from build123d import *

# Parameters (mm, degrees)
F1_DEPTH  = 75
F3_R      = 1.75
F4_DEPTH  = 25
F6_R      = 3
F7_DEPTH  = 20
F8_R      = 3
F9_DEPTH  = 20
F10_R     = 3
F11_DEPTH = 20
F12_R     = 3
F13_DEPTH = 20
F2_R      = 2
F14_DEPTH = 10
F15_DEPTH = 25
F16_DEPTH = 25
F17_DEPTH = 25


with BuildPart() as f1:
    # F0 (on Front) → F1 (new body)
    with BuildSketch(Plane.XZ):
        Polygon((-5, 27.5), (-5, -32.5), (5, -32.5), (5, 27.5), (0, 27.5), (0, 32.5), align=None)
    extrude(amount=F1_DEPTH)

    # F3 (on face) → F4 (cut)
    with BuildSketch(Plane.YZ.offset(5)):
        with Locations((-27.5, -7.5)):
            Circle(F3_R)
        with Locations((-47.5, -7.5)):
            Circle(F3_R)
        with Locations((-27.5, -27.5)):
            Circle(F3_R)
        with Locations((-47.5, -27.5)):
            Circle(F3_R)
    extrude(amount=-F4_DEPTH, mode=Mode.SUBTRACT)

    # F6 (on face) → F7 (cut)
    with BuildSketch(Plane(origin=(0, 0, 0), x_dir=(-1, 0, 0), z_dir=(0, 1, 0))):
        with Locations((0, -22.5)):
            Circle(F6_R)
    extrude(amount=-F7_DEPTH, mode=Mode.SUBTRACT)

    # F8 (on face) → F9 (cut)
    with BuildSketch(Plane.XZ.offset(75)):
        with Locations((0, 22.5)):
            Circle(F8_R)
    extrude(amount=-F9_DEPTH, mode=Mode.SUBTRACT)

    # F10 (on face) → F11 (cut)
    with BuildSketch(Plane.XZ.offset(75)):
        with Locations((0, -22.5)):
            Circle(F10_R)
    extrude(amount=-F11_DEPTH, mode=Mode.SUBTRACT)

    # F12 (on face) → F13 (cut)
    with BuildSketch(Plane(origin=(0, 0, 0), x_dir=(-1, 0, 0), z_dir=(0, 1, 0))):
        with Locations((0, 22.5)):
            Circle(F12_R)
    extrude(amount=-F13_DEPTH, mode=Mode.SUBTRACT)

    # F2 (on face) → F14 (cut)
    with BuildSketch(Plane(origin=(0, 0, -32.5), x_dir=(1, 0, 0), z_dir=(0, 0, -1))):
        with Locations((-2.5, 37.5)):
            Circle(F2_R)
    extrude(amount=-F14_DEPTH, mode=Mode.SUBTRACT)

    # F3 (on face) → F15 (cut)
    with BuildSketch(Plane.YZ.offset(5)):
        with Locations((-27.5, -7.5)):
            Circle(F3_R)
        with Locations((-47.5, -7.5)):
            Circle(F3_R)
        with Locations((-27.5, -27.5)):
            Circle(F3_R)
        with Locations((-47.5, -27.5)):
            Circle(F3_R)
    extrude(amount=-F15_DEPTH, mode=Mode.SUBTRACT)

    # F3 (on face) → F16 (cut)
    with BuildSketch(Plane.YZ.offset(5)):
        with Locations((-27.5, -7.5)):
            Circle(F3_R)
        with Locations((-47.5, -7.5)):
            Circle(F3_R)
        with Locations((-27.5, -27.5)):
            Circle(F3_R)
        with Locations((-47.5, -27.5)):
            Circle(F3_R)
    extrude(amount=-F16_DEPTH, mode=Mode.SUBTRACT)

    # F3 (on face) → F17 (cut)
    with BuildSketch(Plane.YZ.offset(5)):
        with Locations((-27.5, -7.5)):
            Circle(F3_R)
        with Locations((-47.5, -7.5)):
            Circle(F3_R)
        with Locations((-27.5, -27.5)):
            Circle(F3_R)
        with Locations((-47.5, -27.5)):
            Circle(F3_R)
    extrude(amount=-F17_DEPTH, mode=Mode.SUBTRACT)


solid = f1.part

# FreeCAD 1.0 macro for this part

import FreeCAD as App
import Part
import Sketcher

V = App.Vector
Q = App.Units.Quantity

doc = App.newDocument("Part")
body = doc.addObject("PartDesign::Body", "Body")

# Sketch on XZ plane
sketch1 = body.newObject("Sketcher::SketchObject", "Sketch")
sketch1.AttachmentSupport = (doc.getObject("XZ_Plane"), [""])
sketch1.MapMode = "FlatFace"
sketch1.addGeometry([
    Part.LineSegment(V(-5, 28, 0), V(-5, -32, 0)),  # 0
    Part.LineSegment(V(-5, -32, 0), V(5, -32, 0)),  # 1
    Part.LineSegment(V(5, -32, 0), V(5, 28, 0)),  # 2
    Part.LineSegment(V(5, 28, 0), V(0, 28, 0)),  # 3
    Part.LineSegment(V(0, 28, 0), V(0, 32, 0)),  # 4
    Part.LineSegment(V(0, 32, 0), V(-5, 28, 0)),  # 5
], False)
sketch1.addConstraint([
    Sketcher.Constraint("Coincident", 0, 2, 1, 1),
    Sketcher.Constraint("Coincident", 1, 2, 2, 1),
    Sketcher.Constraint("Coincident", 2, 2, 3, 1),
    Sketcher.Constraint("Coincident", 3, 2, 4, 1),
    Sketcher.Constraint("Coincident", 4, 2, 5, 1),
    Sketcher.Constraint("Coincident", 5, 2, 0, 1),
    Sketcher.Constraint("Vertical", 0),
    Sketcher.Constraint("Horizontal", 1),
    Sketcher.Constraint("Vertical", 2),
    Sketcher.Constraint("Horizontal", 3),
    Sketcher.Constraint("Vertical", 4),
    Sketcher.Constraint("Symmetric", 2, 2, 5, 2, -2),
    Sketcher.Constraint("PointOnObject", 3, 2, -2),
    Sketcher.Constraint("Equal", 3, 4),
    Sketcher.Constraint("DistanceX", 1, 1, 1, 2, Q("10 mm")),
    Sketcher.Constraint("DistanceY", 0, 2, 0, 1, Q("60 mm")),
    Sketcher.Constraint("DistanceY", 0, 2, -1, 1, Q("32.5 mm")),
])
pad1 = body.newObject("PartDesign::Pad", "Pad")
pad1.Profile = sketch1
pad1.Length = 75

# Sketch on YZ plane
sketch2 = body.newObject("Sketcher::SketchObject", "Sketch001")
sketch2.AttachmentSupport = (doc.getObject("YZ_Plane"), [""])
sketch2.MapMode = "FlatFace"
sketch2.AttachmentOffset = App.Placement(V(0, 0, 5), App.Rotation())
sketch2.addGeometry([
    Part.Circle(V(-27.5, -7.5, 0), V(0, 0, 1), 1.8),
    Part.Circle(V(-47.5, -7.5, 0), V(0, 0, 1), 1.8),
    Part.Circle(V(-27.5, -27.5, 0), V(0, 0, 1), 1.8),
    Part.Circle(V(-47.5, -27.5, 0), V(0, 0, 1), 1.8),
], False)
sketch2.addConstraint([
    Sketcher.Constraint("Equal", 0, 1),
    Sketcher.Constraint("Equal", 1, 2),
    Sketcher.Constraint("Equal", 2, 3),
    Sketcher.Constraint("Horizontal", 0, 3, 1, 3),
    Sketcher.Constraint("Horizontal", 2, 3, 3, 3),
    Sketcher.Constraint("Vertical", 0, 3, 2, 3),
    Sketcher.Constraint("Vertical", 1, 3, 3, 3),
    Sketcher.Constraint("Diameter", 0, Q("3.5 mm")),
    Sketcher.Constraint("DistanceX", 1, 3, 0, 3, Q("20 mm")),
    Sketcher.Constraint("DistanceY", 2, 3, 0, 3, Q("20 mm")),
    Sketcher.Constraint("DistanceX", 0, 3, -1, 1, Q("27.5 mm")),
    Sketcher.Constraint("DistanceY", 0, 3, -1, 1, Q("7.5 mm")),
])
pocket1 = body.newObject("PartDesign::Pocket", "Pocket")
pocket1.Profile = sketch2
pocket1.Length = 25

# Sketch on XZ plane
sketch3 = body.newObject("Sketcher::SketchObject", "Sketch002")
sketch3.AttachmentSupport = (doc.getObject("XZ_Plane"), [""])
sketch3.MapMode = "FlatFace"
sketch3.addGeometry(Part.Circle(V(0, -22.5, 0), V(0, 0, 1), 3), False)
sketch3.addConstraint([
    Sketcher.Constraint("PointOnObject", 0, 3, -2),
    Sketcher.Constraint("Diameter", 0, Q("6 mm")),
    Sketcher.Constraint("DistanceY", 0, 3, -1, 1, Q("22.5 mm")),
])
pocket2 = body.newObject("PartDesign::Pocket", "Pocket001")
pocket2.Profile = sketch3
pocket2.Length = 20
pocket2.Reversed = True

# Sketch on XZ plane
sketch4 = body.newObject("Sketcher::SketchObject", "Sketch003")
sketch4.AttachmentSupport = (doc.getObject("XZ_Plane"), [""])
sketch4.MapMode = "FlatFace"
sketch4.AttachmentOffset = App.Placement(V(0, 0, 75), App.Rotation())
sketch4.addGeometry(Part.Circle(V(0, 22.5, 0), V(0, 0, 1), 3), False)
sketch4.addConstraint([
    Sketcher.Constraint("PointOnObject", 0, 3, -2),
    Sketcher.Constraint("Diameter", 0, Q("6 mm")),
    Sketcher.Constraint("DistanceY", -1, 1, 0, 3, Q("22.5 mm")),
])
pocket3 = body.newObject("PartDesign::Pocket", "Pocket002")
pocket3.Profile = sketch4
pocket3.Length = 20

# Sketch on XZ plane
sketch5 = body.newObject("Sketcher::SketchObject", "Sketch004")
sketch5.AttachmentSupport = (doc.getObject("XZ_Plane"), [""])
sketch5.MapMode = "FlatFace"
sketch5.AttachmentOffset = App.Placement(V(0, 0, 75), App.Rotation())
sketch5.addGeometry(Part.Circle(V(0, -22.5, 0), V(0, 0, 1), 3), False)
sketch5.addConstraint([
    Sketcher.Constraint("PointOnObject", 0, 3, -2),
    Sketcher.Constraint("Diameter", 0, Q("6 mm")),
    Sketcher.Constraint("DistanceY", 0, 3, -1, 1, Q("22.5 mm")),
])
pocket4 = body.newObject("PartDesign::Pocket", "Pocket003")
pocket4.Profile = sketch5
pocket4.Length = 20

# Sketch on XZ plane
sketch6 = body.newObject("Sketcher::SketchObject", "Sketch005")
sketch6.AttachmentSupport = (doc.getObject("XZ_Plane"), [""])
sketch6.MapMode = "FlatFace"
sketch6.addGeometry(Part.Circle(V(0, 22.5, 0), V(0, 0, 1), 3), False)
sketch6.addConstraint([
    Sketcher.Constraint("PointOnObject", 0, 3, -2),
    Sketcher.Constraint("Diameter", 0, Q("6 mm")),
    Sketcher.Constraint("DistanceY", -1, 1, 0, 3, Q("22.5 mm")),
])
pocket5 = body.newObject("PartDesign::Pocket", "Pocket004")
pocket5.Profile = sketch6
pocket5.Length = 20
pocket5.Reversed = True

# Sketch on XY plane
sketch7 = body.newObject("Sketcher::SketchObject", "Sketch006")
sketch7.AttachmentSupport = (doc.getObject("XY_Plane"), [""])
sketch7.MapMode = "FlatFace"
sketch7.AttachmentOffset = App.Placement(V(0, 0, -32.5), App.Rotation())
sketch7.addGeometry(Part.Circle(V(-2.5, -37.5, 0), V(0, 0, 1), 2), False)
sketch7.addConstraint([
    Sketcher.Constraint("Diameter", 0, Q("4 mm")),
    Sketcher.Constraint("DistanceX", 0, 3, -1, 1, Q("2.5 mm")),
    Sketcher.Constraint("DistanceY", 0, 3, -1, 1, Q("37.5 mm")),
])
pocket6 = body.newObject("PartDesign::Pocket", "Pocket005")
pocket6.Profile = sketch7
pocket6.Length = 10
pocket6.Reversed = True

# Sketch on YZ plane
sketch8 = body.newObject("Sketcher::SketchObject", "Sketch007")
sketch8.AttachmentSupport = (doc.getObject("YZ_Plane"), [""])
sketch8.MapMode = "FlatFace"
sketch8.AttachmentOffset = App.Placement(V(0, 0, 5), App.Rotation())
sketch8.addGeometry([
    Part.Circle(V(-27.5, -7.5, 0), V(0, 0, 1), 1.8),
    Part.Circle(V(-47.5, -7.5, 0), V(0, 0, 1), 1.8),
    Part.Circle(V(-27.5, -27.5, 0), V(0, 0, 1), 1.8),
    Part.Circle(V(-47.5, -27.5, 0), V(0, 0, 1), 1.8),
], False)
sketch8.addConstraint([
    Sketcher.Constraint("Equal", 0, 1),
    Sketcher.Constraint("Equal", 1, 2),
    Sketcher.Constraint("Equal", 2, 3),
    Sketcher.Constraint("Horizontal", 0, 3, 1, 3),
    Sketcher.Constraint("Horizontal", 2, 3, 3, 3),
    Sketcher.Constraint("Vertical", 0, 3, 2, 3),
    Sketcher.Constraint("Vertical", 1, 3, 3, 3),
    Sketcher.Constraint("Diameter", 0, Q("3.5 mm")),
    Sketcher.Constraint("DistanceX", 1, 3, 0, 3, Q("20 mm")),
    Sketcher.Constraint("DistanceY", 2, 3, 0, 3, Q("20 mm")),
    Sketcher.Constraint("DistanceX", 0, 3, -1, 1, Q("27.5 mm")),
    Sketcher.Constraint("DistanceY", 0, 3, -1, 1, Q("7.5 mm")),
])
pocket7 = body.newObject("PartDesign::Pocket", "Pocket006")
pocket7.Profile = sketch8
pocket7.Length = 25

# Sketch on YZ plane
sketch9 = body.newObject("Sketcher::SketchObject", "Sketch008")
sketch9.AttachmentSupport = (doc.getObject("YZ_Plane"), [""])
sketch9.MapMode = "FlatFace"
sketch9.AttachmentOffset = App.Placement(V(0, 0, 5), App.Rotation())
sketch9.addGeometry([
    Part.Circle(V(-27.5, -7.5, 0), V(0, 0, 1), 1.8),
    Part.Circle(V(-47.5, -7.5, 0), V(0, 0, 1), 1.8),
    Part.Circle(V(-27.5, -27.5, 0), V(0, 0, 1), 1.8),
    Part.Circle(V(-47.5, -27.5, 0), V(0, 0, 1), 1.8),
], False)
sketch9.addConstraint([
    Sketcher.Constraint("Equal", 0, 1),
    Sketcher.Constraint("Equal", 1, 2),
    Sketcher.Constraint("Equal", 2, 3),
    Sketcher.Constraint("Horizontal", 0, 3, 1, 3),
    Sketcher.Constraint("Horizontal", 2, 3, 3, 3),
    Sketcher.Constraint("Vertical", 0, 3, 2, 3),
    Sketcher.Constraint("Vertical", 1, 3, 3, 3),
    Sketcher.Constraint("Diameter", 0, Q("3.5 mm")),
    Sketcher.Constraint("DistanceX", 1, 3, 0, 3, Q("20 mm")),
    Sketcher.Constraint("DistanceY", 2, 3, 0, 3, Q("20 mm")),
    Sketcher.Constraint("DistanceX", 0, 3, -1, 1, Q("27.5 mm")),
    Sketcher.Constraint("DistanceY", 0, 3, -1, 1, Q("7.5 mm")),
])
pocket8 = body.newObject("PartDesign::Pocket", "Pocket007")
pocket8.Profile = sketch9
pocket8.Length = 25

# Sketch on YZ plane
sketch10 = body.newObject("Sketcher::SketchObject", "Sketch009")
sketch10.AttachmentSupport = (doc.getObject("YZ_Plane"), [""])
sketch10.MapMode = "FlatFace"
sketch10.AttachmentOffset = App.Placement(V(0, 0, 5), App.Rotation())
sketch10.addGeometry([
    Part.Circle(V(-27.5, -7.5, 0), V(0, 0, 1), 1.8),
    Part.Circle(V(-47.5, -7.5, 0), V(0, 0, 1), 1.8),
    Part.Circle(V(-27.5, -27.5, 0), V(0, 0, 1), 1.8),
    Part.Circle(V(-47.5, -27.5, 0), V(0, 0, 1), 1.8),
], False)
sketch10.addConstraint([
    Sketcher.Constraint("Equal", 0, 1),
    Sketcher.Constraint("Equal", 1, 2),
    Sketcher.Constraint("Equal", 2, 3),
    Sketcher.Constraint("Horizontal", 0, 3, 1, 3),
    Sketcher.Constraint("Horizontal", 2, 3, 3, 3),
    Sketcher.Constraint("Vertical", 0, 3, 2, 3),
    Sketcher.Constraint("Vertical", 1, 3, 3, 3),
    Sketcher.Constraint("Diameter", 0, Q("3.5 mm")),
    Sketcher.Constraint("DistanceX", 1, 3, 0, 3, Q("20 mm")),
    Sketcher.Constraint("DistanceY", 2, 3, 0, 3, Q("20 mm")),
    Sketcher.Constraint("DistanceX", 0, 3, -1, 1, Q("27.5 mm")),
    Sketcher.Constraint("DistanceY", 0, 3, -1, 1, Q("7.5 mm")),
])
pocket9 = body.newObject("PartDesign::Pocket", "Pocket008")
pocket9.Profile = sketch10
pocket9.Length = 25

doc.recompute()
